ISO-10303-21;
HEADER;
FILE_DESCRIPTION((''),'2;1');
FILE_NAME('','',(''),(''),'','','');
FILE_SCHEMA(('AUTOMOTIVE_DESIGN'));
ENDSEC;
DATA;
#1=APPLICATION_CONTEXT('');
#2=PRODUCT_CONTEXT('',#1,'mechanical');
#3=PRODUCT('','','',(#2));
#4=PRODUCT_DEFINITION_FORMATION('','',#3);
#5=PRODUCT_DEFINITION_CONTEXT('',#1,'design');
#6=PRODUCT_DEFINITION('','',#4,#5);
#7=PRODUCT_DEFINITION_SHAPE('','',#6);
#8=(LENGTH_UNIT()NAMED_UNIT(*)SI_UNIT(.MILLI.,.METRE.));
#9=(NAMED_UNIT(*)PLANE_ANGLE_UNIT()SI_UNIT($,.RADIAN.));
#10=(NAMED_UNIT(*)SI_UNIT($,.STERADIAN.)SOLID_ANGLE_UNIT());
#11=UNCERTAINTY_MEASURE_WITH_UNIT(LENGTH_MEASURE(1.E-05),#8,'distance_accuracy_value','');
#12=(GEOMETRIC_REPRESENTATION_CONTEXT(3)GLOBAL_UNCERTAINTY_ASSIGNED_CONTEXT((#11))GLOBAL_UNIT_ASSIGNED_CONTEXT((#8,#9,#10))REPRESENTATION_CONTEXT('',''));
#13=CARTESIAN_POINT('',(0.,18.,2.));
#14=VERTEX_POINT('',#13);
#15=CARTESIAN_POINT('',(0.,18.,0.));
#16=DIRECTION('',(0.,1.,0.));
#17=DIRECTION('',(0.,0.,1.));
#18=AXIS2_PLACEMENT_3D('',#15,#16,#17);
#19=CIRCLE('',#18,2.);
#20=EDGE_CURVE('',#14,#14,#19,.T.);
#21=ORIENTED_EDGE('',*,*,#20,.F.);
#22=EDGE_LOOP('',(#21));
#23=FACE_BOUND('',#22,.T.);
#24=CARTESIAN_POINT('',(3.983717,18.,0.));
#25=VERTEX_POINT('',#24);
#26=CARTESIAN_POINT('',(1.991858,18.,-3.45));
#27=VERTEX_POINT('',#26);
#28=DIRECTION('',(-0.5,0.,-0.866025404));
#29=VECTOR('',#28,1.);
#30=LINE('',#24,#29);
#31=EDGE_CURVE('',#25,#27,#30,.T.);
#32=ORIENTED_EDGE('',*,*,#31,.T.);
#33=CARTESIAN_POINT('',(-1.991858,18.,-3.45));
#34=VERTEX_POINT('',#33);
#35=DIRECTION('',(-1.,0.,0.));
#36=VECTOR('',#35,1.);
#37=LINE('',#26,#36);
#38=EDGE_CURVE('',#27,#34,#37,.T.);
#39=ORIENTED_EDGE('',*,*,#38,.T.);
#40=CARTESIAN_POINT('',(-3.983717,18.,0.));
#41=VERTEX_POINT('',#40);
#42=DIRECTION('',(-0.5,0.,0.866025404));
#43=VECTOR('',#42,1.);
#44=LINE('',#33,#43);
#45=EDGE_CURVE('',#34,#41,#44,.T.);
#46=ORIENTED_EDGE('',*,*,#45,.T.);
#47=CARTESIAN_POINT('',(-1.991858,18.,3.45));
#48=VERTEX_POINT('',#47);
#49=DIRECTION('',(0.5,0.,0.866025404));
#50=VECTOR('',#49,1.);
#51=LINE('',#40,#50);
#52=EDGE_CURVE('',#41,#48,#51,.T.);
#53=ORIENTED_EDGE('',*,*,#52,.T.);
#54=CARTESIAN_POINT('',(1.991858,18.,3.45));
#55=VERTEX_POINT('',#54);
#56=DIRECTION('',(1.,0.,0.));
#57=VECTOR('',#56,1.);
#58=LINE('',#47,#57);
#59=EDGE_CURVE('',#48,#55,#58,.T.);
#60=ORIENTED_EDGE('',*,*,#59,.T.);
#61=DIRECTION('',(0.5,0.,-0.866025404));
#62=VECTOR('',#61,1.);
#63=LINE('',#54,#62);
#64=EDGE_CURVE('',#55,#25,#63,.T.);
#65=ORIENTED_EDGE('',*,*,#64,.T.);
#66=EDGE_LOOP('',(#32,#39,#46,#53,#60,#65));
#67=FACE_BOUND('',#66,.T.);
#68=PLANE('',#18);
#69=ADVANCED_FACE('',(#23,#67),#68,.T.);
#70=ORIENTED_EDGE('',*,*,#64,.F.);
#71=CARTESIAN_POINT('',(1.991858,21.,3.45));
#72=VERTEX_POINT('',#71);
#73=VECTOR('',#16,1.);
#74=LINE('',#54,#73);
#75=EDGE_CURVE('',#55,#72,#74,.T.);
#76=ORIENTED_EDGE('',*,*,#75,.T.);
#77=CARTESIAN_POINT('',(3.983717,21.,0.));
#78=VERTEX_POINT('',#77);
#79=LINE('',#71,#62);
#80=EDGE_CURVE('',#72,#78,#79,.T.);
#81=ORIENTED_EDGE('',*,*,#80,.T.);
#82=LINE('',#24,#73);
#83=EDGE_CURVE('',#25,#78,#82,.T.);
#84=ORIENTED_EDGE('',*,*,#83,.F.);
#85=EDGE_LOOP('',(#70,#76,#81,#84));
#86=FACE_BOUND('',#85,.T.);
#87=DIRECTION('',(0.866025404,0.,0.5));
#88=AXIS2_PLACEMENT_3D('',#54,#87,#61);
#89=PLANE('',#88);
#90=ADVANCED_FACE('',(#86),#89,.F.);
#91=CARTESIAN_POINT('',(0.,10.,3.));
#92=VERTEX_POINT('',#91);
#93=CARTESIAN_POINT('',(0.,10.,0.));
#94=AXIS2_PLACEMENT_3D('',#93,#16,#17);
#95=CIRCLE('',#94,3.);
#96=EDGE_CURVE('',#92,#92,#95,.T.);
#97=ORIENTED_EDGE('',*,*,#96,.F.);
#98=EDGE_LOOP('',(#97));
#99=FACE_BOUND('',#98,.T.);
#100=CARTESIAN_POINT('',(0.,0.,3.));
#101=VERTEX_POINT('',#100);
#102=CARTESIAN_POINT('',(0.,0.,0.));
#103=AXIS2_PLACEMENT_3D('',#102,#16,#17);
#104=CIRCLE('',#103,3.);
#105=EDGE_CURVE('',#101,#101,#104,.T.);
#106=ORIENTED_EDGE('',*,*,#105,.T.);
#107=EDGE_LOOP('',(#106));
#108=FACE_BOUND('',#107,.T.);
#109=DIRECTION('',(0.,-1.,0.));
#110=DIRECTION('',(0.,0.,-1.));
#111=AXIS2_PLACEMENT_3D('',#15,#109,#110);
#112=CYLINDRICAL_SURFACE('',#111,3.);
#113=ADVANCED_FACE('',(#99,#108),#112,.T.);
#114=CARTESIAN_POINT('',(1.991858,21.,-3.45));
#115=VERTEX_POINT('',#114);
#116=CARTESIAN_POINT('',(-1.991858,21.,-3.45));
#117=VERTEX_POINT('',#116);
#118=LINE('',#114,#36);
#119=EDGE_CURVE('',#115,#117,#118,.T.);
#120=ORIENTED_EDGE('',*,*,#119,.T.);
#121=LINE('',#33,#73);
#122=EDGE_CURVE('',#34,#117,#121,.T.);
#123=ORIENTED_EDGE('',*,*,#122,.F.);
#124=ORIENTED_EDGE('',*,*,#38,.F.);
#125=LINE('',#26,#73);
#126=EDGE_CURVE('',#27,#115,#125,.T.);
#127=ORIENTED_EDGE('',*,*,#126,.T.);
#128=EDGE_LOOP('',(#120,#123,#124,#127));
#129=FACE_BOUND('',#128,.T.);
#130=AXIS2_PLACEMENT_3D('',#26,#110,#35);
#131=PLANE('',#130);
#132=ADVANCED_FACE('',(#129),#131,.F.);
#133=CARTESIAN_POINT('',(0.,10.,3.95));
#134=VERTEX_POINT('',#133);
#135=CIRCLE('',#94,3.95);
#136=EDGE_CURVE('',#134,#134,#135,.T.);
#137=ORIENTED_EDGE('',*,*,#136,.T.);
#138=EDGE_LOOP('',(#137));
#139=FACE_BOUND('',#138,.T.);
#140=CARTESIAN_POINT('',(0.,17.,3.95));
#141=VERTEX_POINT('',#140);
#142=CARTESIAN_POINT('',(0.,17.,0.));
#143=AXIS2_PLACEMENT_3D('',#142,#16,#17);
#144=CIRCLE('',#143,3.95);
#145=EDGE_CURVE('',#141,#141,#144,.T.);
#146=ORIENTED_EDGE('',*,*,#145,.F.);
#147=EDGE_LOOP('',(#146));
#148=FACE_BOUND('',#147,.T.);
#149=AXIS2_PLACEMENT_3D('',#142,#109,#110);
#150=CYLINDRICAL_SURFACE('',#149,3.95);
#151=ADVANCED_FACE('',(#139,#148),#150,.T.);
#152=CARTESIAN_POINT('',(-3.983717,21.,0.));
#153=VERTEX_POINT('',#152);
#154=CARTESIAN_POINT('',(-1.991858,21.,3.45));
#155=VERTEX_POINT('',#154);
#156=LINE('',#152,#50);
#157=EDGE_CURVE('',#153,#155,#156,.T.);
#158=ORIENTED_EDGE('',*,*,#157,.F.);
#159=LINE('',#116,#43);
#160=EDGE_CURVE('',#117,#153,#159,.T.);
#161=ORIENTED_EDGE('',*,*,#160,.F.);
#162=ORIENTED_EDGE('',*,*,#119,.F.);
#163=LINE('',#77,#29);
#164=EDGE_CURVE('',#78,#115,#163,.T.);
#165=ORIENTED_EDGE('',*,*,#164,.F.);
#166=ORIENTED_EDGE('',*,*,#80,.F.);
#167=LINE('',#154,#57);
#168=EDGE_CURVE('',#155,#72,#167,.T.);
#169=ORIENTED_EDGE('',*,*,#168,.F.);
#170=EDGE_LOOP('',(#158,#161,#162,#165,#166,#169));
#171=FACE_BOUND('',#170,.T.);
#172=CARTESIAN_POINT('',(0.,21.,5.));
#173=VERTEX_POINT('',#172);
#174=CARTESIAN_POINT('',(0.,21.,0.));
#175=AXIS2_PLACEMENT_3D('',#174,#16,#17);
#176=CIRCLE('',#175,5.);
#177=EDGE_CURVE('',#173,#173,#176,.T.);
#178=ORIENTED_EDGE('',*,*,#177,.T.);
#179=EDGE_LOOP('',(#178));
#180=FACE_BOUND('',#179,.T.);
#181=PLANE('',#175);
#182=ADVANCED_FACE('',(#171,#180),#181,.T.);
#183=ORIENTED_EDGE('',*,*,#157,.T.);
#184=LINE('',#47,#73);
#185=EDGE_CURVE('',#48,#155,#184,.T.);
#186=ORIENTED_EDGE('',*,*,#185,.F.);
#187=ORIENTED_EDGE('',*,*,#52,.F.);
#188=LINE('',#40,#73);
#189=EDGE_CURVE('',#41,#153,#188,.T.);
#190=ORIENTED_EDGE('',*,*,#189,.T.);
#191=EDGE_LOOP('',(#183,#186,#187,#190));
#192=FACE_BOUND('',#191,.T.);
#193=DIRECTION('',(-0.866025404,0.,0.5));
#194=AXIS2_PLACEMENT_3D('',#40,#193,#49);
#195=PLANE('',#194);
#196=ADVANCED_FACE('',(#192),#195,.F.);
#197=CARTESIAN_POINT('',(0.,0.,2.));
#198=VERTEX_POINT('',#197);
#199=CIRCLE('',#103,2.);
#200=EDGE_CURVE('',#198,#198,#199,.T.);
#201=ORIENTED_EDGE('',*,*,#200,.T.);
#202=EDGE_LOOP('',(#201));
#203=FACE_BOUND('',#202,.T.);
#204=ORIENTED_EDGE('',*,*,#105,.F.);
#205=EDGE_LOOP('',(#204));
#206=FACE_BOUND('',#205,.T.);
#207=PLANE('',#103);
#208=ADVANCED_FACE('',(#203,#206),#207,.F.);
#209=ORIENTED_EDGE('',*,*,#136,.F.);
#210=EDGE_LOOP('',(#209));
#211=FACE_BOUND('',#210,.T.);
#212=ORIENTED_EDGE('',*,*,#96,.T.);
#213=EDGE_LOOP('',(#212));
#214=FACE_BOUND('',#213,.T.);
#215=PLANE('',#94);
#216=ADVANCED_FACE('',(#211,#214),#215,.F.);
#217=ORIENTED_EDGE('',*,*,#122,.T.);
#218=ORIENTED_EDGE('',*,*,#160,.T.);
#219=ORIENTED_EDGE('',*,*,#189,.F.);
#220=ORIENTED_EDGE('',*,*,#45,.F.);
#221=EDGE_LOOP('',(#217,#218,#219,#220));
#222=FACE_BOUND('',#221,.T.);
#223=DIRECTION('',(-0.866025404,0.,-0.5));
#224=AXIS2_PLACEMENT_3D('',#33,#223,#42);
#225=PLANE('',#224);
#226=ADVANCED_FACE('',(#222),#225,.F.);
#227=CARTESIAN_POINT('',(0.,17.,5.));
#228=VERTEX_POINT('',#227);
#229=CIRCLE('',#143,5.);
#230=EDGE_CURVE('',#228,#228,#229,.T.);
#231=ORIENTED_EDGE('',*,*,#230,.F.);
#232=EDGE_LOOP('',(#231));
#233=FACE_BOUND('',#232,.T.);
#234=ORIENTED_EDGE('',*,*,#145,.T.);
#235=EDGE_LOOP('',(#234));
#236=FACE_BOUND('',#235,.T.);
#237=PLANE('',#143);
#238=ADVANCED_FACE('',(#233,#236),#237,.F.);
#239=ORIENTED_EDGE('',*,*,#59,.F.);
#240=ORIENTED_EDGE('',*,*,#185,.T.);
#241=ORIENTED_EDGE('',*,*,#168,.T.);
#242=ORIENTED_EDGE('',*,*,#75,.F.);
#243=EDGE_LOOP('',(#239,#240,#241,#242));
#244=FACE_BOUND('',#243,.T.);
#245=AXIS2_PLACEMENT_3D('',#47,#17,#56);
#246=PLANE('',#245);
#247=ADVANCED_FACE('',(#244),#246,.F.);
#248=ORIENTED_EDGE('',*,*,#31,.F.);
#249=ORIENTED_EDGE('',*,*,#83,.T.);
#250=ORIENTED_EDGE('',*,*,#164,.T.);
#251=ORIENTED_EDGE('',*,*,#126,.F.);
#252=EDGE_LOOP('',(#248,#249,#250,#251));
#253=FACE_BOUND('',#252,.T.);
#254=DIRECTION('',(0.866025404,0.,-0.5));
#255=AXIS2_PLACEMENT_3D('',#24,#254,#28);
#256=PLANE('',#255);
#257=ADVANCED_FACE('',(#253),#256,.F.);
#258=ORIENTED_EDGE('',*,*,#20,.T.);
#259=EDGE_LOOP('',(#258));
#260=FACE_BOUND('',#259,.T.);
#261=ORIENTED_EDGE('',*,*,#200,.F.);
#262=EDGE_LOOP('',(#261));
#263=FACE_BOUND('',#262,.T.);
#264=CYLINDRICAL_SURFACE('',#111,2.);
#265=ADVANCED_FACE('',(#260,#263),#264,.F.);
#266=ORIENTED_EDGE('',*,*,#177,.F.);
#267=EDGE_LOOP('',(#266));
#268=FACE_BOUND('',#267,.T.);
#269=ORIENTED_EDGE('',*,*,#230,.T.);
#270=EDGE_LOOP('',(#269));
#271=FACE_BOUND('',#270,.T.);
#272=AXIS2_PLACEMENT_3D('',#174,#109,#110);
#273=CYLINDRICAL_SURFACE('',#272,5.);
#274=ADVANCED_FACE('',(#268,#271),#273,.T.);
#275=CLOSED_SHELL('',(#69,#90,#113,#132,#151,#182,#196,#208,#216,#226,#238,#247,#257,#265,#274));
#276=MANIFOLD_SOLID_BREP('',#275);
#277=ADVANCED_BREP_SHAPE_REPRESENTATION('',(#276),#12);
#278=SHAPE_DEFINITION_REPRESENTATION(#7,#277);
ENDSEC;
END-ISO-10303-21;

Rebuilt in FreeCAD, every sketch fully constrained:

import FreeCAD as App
import Part
import Sketcher
from FreeCAD import Vector
Q = App.Units.Quantity

doc = App.newDocument("Part")
body = doc.addObject("PartDesign::Body", "Body")

# Sketch on XZ plane
sketch1 = body.newObject("Sketcher::SketchObject", "Sketch")
sketch1.AttachmentSupport = (doc.getObject("XZ_Plane"), [""])
sketch1.MapMode = "FlatFace"
sketch1.addGeometry(Part.Circle(Vector(0, 0, 0), Vector(0, 0, 1), 3), False)
sketch1.addGeometry(Part.Circle(Vector(0, 0, 0), Vector(0, 0, 1), 2), False)
sketch1.addConstraint(Sketcher.Constraint("Coincident", 0, 3, -1, 1))
sketch1.addConstraint(Sketcher.Constraint("Coincident", 1, 3, -1, 1))
sketch1.addConstraint(Sketcher.Constraint("Diameter", 0, 6.0))
sketch1.addConstraint(Sketcher.Constraint("Diameter", 1, 4.0))
pad1 = body.newObject("PartDesign::Pad", "Pad")
pad1.Profile = sketch1
pad1.Length = 18
pad1.Reversed = True

# Sketch on XZ plane
sketch2 = body.newObject("Sketcher::SketchObject", "Sketch001")
sketch2.AttachmentSupport = (doc.getObject("XZ_Plane"), [""])
sketch2.MapMode = "FlatFace"
sketch2.AttachmentOffset = App.Placement(Vector(0, 0, -10), App.Rotation())
sketch2.addGeometry(Part.Circle(Vector(0, 0, 0), Vector(0, 0, 1), 4), False)
sketch2.addGeometry(Part.Circle(Vector(0, 0, 0), Vector(0, 0, 1), 2), False)
sketch2.addConstraint(Sketcher.Constraint("Coincident", 0, 3, -1, 1))
sketch2.addConstraint(Sketcher.Constraint("Coincident", 1, 3, -1, 1))
sketch2.addConstraint(Sketcher.Constraint("Diameter", 1, 4.0))
sketch2.addConstraint(Sketcher.Constraint("Diameter", 0, 7.9))
pad2 = body.newObject("PartDesign::Pad", "Pad001")
pad2.Profile = sketch2
pad2.Length = 7
pad2.Reversed = True

# Sketch on XZ plane
sketch3 = body.newObject("Sketcher::SketchObject", "Sketch002")
sketch3.AttachmentSupport = (doc.getObject("XZ_Plane"), [""])
sketch3.MapMode = "FlatFace"
sketch3.AttachmentOffset = App.Placement(Vector(0, 0, -17), App.Rotation())
sketch3.addGeometry(Part.Circle(Vector(0, 0, 0), Vector(0, 0, 1), 5), False)
sketch3.addGeometry(Part.Circle(Vector(0, 0, 0), Vector(0, 0, 1), 2), False)
sketch3.addConstraint(Sketcher.Constraint("Coincident", 0, 3, -1, 1))
sketch3.addConstraint(Sketcher.Constraint("Coincident", 1, 3, -1, 1))
sketch3.addConstraint(Sketcher.Constraint("Diameter", 0, 10.0))
sketch3.addConstraint(Sketcher.Constraint("Diameter", 1, 4.0))
pad3 = body.newObject("PartDesign::Pad", "Pad002")
pad3.Profile = sketch3
pad3.Length = 4
pad3.Reversed = True

# Sketch on XZ plane
sketch4 = body.newObject("Sketcher::SketchObject", "Sketch003")
sketch4.AttachmentSupport = (doc.getObject("XZ_Plane"), [""])
sketch4.MapMode = "FlatFace"
sketch4.AttachmentOffset = App.Placement(Vector(0, 0, -21), App.Rotation())
sketch4.addGeometry(Part.LineSegment(Vector(4, 0, 0), Vector(2, -3.5, 0)), False)
sketch4.addGeometry(Part.LineSegment(Vector(2, -3.5, 0), Vector(-2, -3.5, 0)), False)
sketch4.addGeometry(Part.LineSegment(Vector(-2, -3.5, 0), Vector(-4, 0, 0)), False)
sketch4.addGeometry(Part.LineSegment(Vector(-4, 0, 0), Vector(-2, 3.5, 0)), False)
sketch4.addGeometry(Part.LineSegment(Vector(-2, 3.5, 0), Vector(2, 3.5, 0)), False)
sketch4.addGeometry(Part.LineSegment(Vector(2, 3.5, 0), Vector(4, 0, 0)), False)
sketch4.addConstraint(Sketcher.Constraint("Coincident", 0, 2, 1, 1))
sketch4.addConstraint(Sketcher.Constraint("Coincident", 1, 2, 2, 1))
sketch4.addConstraint(Sketcher.Constraint("Coincident", 2, 2, 3, 1))
sketch4.addConstraint(Sketcher.Constraint("Coincident", 3, 2, 4, 1))
sketch4.addConstraint(Sketcher.Constraint("Coincident", 4, 2, 5, 1))
sketch4.addConstraint(Sketcher.Constraint("Coincident", 5, 2, 0, 1))
sketch4.addConstraint(Sketcher.Constraint("Horizontal", 1))
sketch4.addConstraint(Sketcher.Constraint("Horizontal", 4))
sketch4.addConstraint(Sketcher.Constraint("Symmetric", 0, 2, 3, 2, -1, 1))
sketch4.addConstraint(Sketcher.Constraint("Symmetric", 2, 2, 5, 2, -1, 1))
sketch4.addConstraint(Sketcher.Constraint("PointOnObject", 2, 2, -1))
sketch4.addConstraint(Sketcher.Constraint("Parallel", 2, 5))
sketch4.addConstraint(Sketcher.Constraint("Vertical", 1, 2, 3, 2))
sketch4.addConstraint(Sketcher.Constraint("Angle", 0, Q("-120 deg")))
sketch4.addConstraint(Sketcher.Constraint("DistanceY", 1, 2, 3, 2, 6.9))
sketch4.addConstraint(Sketcher.Constraint("DistanceX", 1, 2, 1, 1, 3.983717))
pocket1 = body.newObject("PartDesign::Pocket", "Pocket")
pocket1.Profile = sketch4
pocket1.Length = 3
pocket1.Reversed = True

doc.recompute()
